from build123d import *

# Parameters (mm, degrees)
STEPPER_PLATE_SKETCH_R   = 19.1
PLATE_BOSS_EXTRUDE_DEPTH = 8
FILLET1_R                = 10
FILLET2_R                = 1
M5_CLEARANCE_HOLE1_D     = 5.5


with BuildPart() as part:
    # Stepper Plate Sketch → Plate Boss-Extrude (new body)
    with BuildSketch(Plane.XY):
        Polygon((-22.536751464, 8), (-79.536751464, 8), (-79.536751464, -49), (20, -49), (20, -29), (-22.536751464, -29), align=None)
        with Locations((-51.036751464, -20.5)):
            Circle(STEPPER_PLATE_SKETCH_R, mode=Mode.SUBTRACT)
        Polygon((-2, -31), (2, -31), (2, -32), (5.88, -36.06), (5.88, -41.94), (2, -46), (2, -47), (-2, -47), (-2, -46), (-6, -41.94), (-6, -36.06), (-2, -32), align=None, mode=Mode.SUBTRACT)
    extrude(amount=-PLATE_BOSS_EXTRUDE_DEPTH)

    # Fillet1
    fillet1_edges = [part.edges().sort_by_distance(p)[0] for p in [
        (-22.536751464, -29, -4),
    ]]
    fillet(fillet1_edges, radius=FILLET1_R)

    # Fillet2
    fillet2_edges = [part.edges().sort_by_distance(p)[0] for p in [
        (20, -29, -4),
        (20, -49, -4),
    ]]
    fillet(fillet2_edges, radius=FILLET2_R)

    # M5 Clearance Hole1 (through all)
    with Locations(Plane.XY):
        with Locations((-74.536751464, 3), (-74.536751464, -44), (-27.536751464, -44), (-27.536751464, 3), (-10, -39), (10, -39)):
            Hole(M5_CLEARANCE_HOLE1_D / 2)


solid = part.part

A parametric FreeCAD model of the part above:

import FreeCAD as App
import Part
import Sketcher

V = App.Vector
Q = App.Units.Quantity


def edges_at(feature, points):
    """Names of the edges that pass closest to the given points."""
    edges = feature.Shape.Edges
    near = lambda p: min(range(len(edges)), key=lambda i: edges[i].distToShape(Part.Vertex(*p))[0])
    return sorted({f"Edge{near(p) + 1}" for p in points})

doc = App.newDocument("Part")
body = doc.addObject("PartDesign::Body", "Body")

sketch1 = body.newObject("Sketcher::SketchObject", "Sketch")
sketch1.AttachmentSupport = (doc.getObject("XY_Plane"), [""])
sketch1.MapMode = "FlatFace"
sketch1.addGeometry(Part.LineSegment(V(-22.536751, 8, 0), V(-79.536751, 8, 0)), False)
sketch1.addGeometry(Part.LineSegment(V(-79.536751, 8, 0), V(-79.536751, -49, 0)), False)
sketch1.addGeometry(Part.LineSegment(V(-79.536751, -49, 0), V(20, -49, 0)), False)
sketch1.addGeometry(Part.LineSegment(V(20, -49, 0), V(20, -29, 0)), False)
sketch1.addGeometry(Part.LineSegment(V(20, -29, 0), V(-22.536751, -29, 0)), False)
sketch1.addGeometry(Part.LineSegment(V(-22.536751, -29, 0), V(-22.536751, 8, 0)), False)
sketch1.addGeometry(Part.LineSegment(V(-2, -32, 0), V(-2, -31, 0)), False)
sketch1.addGeometry(Part.LineSegment(V(-2, -31, 0), V(2, -31, 0)), False)
sketch1.addGeometry(Part.LineSegment(V(2, -31, 0), V(2, -32, 0)), False)
sketch1.addGeometry(Part.LineSegment(V(2, -32, 0), V(5.88, -36.06, 0)), False)
sketch1.addGeometry(Part.LineSegment(V(5.88, -36.06, 0), V(5.88, -41.94, 0)), False)
sketch1.addGeometry(Part.LineSegment(V(5.88, -41.94, 0), V(2, -46, 0)), False)
sketch1.addGeometry(Part.LineSegment(V(2, -46, 0), V(2, -47, 0)), False)
sketch1.addGeometry(Part.LineSegment(V(2, -47, 0), V(-2, -47, 0)), False)
sketch1.addGeometry(Part.LineSegment(V(-2, -47, 0), V(-2, -46, 0)), False)
sketch1.addGeometry(Part.LineSegment(V(-2, -46, 0), V(-6, -41.94, 0)), False)
sketch1.addGeometry(Part.LineSegment(V(-6, -41.94, 0), V(-6, -36.06, 0)), False)
sketch1.addGeometry(Part.LineSegment(V(-6, -36.06, 0), V(-2, -32, 0)), False)
sketch1.addGeometry(Part.Circle(V(-51.036751, -20.5, 0), V(0, 0, 1), 19.1), False)
sketch1.addConstraint(Sketcher.Constraint("Coincident", 0, 2, 1, 1))
sketch1.addConstraint(Sketcher.Constraint("Coincident", 1, 2, 2, 1))
sketch1.addConstraint(Sketcher.Constraint("Coincident", 2, 2, 3, 1))
sketch1.addConstraint(Sketcher.Constraint("Coincident", 3, 2, 4, 1))
sketch1.addConstraint(Sketcher.Constraint("Coincident", 4, 2, 5, 1))
sketch1.addConstraint(Sketcher.Constraint("Coincident", 5, 2, 0, 1))
sketch1.addConstraint(Sketcher.Constraint("Coincident", 6, 2, 7, 1))
sketch1.addConstraint(Sketcher.Constraint("Coincident", 7, 2, 8, 1))
sketch1.addConstraint(Sketcher.Constraint("Coincident", 8, 2, 9, 1))
sketch1.addConstraint(Sketcher.Constraint("Coincident", 9, 2, 10, 1))
sketch1.addConstraint(Sketcher.Constraint("Coincident", 10, 2, 11, 1))
sketch1.addConstraint(Sketcher.Constraint("Coincident", 11, 2, 12, 1))
sketch1.addConstraint(Sketcher.Constraint("Coincident", 12, 2, 13, 1))
sketch1.addConstraint(Sketcher.Constraint("Coincident", 13, 2, 14, 1))
sketch1.addConstraint(Sketcher.Constraint("Coincident", 14, 2, 15, 1))
sketch1.addConstraint(Sketcher.Constraint("Coincident", 15, 2, 16, 1))
sketch1.addConstraint(Sketcher.Constraint("Coincident", 16, 2, 17, 1))
sketch1.addConstraint(Sketcher.Constraint("Coincident", 17, 2, 6, 1))
sketch1.addConstraint(Sketcher.Constraint("Horizontal", 0))
sketch1.addConstraint(Sketcher.Constraint("Vertical", 1))
sketch1.addConstraint(Sketcher.Constraint("Horizontal", 2))
sketch1.addConstraint(Sketcher.Constraint("Vertical", 3))
sketch1.addConstraint(Sketcher.Constraint("Horizontal", 4))
sketch1.addConstraint(Sketcher.Constraint("Vertical", 5))
sketch1.addConstraint(Sketcher.Constraint("Vertical", 6))
sketch1.addConstraint(Sketcher.Constraint("Horizontal", 7))
sketch1.addConstraint(Sketcher.Constraint("Vertical", 8))
sketch1.addConstraint(Sketcher.Constraint("Vertical", 10))
sketch1.addConstraint(Sketcher.Constraint("Vertical", 12))
sketch1.addConstraint(Sketcher.Constraint("Horizontal", 13))
sketch1.addConstraint(Sketcher.Constraint("Vertical", 14))
sketch1.addConstraint(Sketcher.Constraint("Vertical", 16))
sketch1.addConstraint(Sketcher.Constraint("Symmetric", 11, 2, 14, 2, -2))
sketch1.addConstraint(Sketcher.Constraint("Symmetric", 8, 2, 17, 2, -2))
sketch1.addConstraint(Sketcher.Constraint("Horizontal", 10, 2, 15, 2))
sketch1.addConstraint(Sketcher.Constraint("Horizontal", 9, 2, 16, 2))
sketch1.addConstraint(Sketcher.Constraint("Vertical", 8, 2, 11, 2))
sketch1.addConstraint(Sketcher.Constraint("Equal", 0, 1))
sketch1.addConstraint(Sketcher.Constraint("Equal", 8, 12))
sketch1.addConstraint(Sketcher.Constraint("Equal", 9, 11))
sketch1.addConstraint(Sketcher.Constraint("Diameter", 18, Q("38.2 mm")))
sketch1.addConstraint(Sketcher.Constraint("DistanceX", 0, 2, 0, 1, Q("57 mm")))
sketch1.addConstraint(Sketcher.Constraint("DistanceX", 7, 1, 7, 2, Q("4 mm")))
sketch1.addConstraint(Sketcher.Constraint("DistanceY", 3, 1, 3, 2, Q("20 mm")))
sketch1.addConstraint(Sketcher.Constraint("DistanceY", 6, 1, 6, 2, Q("1 mm")))
sketch1.addConstraint(Sketcher.Constraint("DistanceY", -1, 1, 0, 2, Q("8 mm")))
sketch1.addConstraint(Sketcher.Constraint("DistanceX", -1, 1, 2, 2, Q("20 mm")))
sketch1.addConstraint(Sketcher.Constraint("DistanceY", 6, 2, -1, 1, Q("31 mm")))
sketch1.addConstraint(Sketcher.Constraint("DistanceY", 11, 2, -1, 1, Q("46 mm")))
sketch1.addConstraint(Sketcher.Constraint("DistanceX", 15, 2, -1, 1, Q("6 mm")))
sketch1.addConstraint(Sketcher.Constraint("DistanceY", 10, 2, 10, 1, Q("5.88 mm")))
sketch1.addConstraint(Sketcher.Constraint("DistanceY", 18, 3, -1, 1, Q("20.5 mm")))
sketch1.addConstraint(Sketcher.Constraint("DistanceX", 0, 2, 18, 3, Q("28.5 mm")))
sketch1.addConstraint(Sketcher.Constraint("DistanceX", -1, 1, 9, 2, Q("5.88 mm")))
sketch1.addConstraint(Sketcher.Constraint("DistanceX", 2, 1, 2, 2, Q("99.536751 mm")))
pad1 = body.newObject("PartDesign::Pad", "Pad")
pad1.Profile = sketch1
pad1.Length = 8
pad1.Reversed = True
doc.recompute()

fillet = body.newObject("PartDesign::Fillet", "Fillet")
fillet.Base = (pad1, edges_at(pad1, [(-22.537, -29, -4)]))
fillet.Radius = 10
doc.recompute()

fillet2 = body.newObject("PartDesign::Fillet", "Fillet001")
fillet2.Base = (fillet, edges_at(fillet, [(20, -29, -4), (20, -49, -4)]))
fillet2.Radius = 1

sketch2 = body.newObject("Sketcher::SketchObject", "Sketch001")
sketch2.AttachmentSupport = (doc.getObject("XY_Plane"), [""])
sketch2.MapMode = "FlatFace"
sketch2.addGeometry(Part.Circle(V(-74.536751, 3, 0), V(0, 0, 1), 2.75), False)
sketch2.addGeometry(Part.Circle(V(-74.536751, -44, 0), V(0, 0, 1), 2.75), False)
sketch2.addGeometry(Part.Circle(V(-27.536751, -44, 0), V(0, 0, 1), 2.75), False)
sketch2.addGeometry(Part.Circle(V(-27.536751, 3, 0), V(0, 0, 1), 2.75), False)
sketch2.addGeometry(Part.Circle(V(-10, -39, 0), V(0, 0, 1), 2.75), False)
sketch2.addGeometry(Part.Circle(V(10, -39, 0), V(0, 0, 1), 2.75), False)
sketch2.addConstraint(Sketcher.Constraint("Equal", 0, 1))
sketch2.addConstraint(Sketcher.Constraint("Equal", 1, 2))
sketch2.addConstraint(Sketcher.Constraint("Equal", 2, 3))
sketch2.addConstraint(Sketcher.Constraint("Equal", 3, 4))
sketch2.addConstraint(Sketcher.Constraint("Equal", 4, 5))
sketch2.addConstraint(Sketcher.Constraint("Symmetric", 4, 3, 5, 3, -2))
sketch2.addConstraint(Sketcher.Constraint("Horizontal", 1, 3, 2, 3))
sketch2.addConstraint(Sketcher.Constraint("Horizontal", 0, 3, 3, 3))
sketch2.addConstraint(Sketcher.Constraint("Vertical", 0, 3, 1, 3))
sketch2.addConstraint(Sketcher.Constraint("Vertical", 2, 3, 3, 3))
sketch2.addConstraint(Sketcher.Constraint("Diameter", 0, Q("5.5 mm")))
sketch2.addConstraint(Sketcher.Constraint("DistanceY", -1, 1, 0, 3, Q("3 mm")))
sketch2.addConstraint(Sketcher.Constraint("DistanceY", 1, 3, -1, 1, Q("44 mm")))
sketch2.addConstraint(Sketcher.Constraint("DistanceX", 4, 3, -1, 1, Q("10 mm")))
sketch2.addConstraint(Sketcher.Constraint("DistanceY", 4, 3, -1, 1, Q("39 mm")))
sketch2.addConstraint(Sketcher.Constraint("DistanceX", 1, 3, 2, 3, Q("47 mm")))
sketch2.addConstraint(Sketcher.Constraint("DistanceX", 0, 3, -1, 1, Q("74.536751 mm")))
doc.recompute()
hole = body.newObject("PartDesign::Hole", "Hole")
hole.Profile = sketch2
hole.ThreadType = "None"
hole.Diameter = 5.5
hole.DepthType = "ThroughAll"

doc.recompute()
